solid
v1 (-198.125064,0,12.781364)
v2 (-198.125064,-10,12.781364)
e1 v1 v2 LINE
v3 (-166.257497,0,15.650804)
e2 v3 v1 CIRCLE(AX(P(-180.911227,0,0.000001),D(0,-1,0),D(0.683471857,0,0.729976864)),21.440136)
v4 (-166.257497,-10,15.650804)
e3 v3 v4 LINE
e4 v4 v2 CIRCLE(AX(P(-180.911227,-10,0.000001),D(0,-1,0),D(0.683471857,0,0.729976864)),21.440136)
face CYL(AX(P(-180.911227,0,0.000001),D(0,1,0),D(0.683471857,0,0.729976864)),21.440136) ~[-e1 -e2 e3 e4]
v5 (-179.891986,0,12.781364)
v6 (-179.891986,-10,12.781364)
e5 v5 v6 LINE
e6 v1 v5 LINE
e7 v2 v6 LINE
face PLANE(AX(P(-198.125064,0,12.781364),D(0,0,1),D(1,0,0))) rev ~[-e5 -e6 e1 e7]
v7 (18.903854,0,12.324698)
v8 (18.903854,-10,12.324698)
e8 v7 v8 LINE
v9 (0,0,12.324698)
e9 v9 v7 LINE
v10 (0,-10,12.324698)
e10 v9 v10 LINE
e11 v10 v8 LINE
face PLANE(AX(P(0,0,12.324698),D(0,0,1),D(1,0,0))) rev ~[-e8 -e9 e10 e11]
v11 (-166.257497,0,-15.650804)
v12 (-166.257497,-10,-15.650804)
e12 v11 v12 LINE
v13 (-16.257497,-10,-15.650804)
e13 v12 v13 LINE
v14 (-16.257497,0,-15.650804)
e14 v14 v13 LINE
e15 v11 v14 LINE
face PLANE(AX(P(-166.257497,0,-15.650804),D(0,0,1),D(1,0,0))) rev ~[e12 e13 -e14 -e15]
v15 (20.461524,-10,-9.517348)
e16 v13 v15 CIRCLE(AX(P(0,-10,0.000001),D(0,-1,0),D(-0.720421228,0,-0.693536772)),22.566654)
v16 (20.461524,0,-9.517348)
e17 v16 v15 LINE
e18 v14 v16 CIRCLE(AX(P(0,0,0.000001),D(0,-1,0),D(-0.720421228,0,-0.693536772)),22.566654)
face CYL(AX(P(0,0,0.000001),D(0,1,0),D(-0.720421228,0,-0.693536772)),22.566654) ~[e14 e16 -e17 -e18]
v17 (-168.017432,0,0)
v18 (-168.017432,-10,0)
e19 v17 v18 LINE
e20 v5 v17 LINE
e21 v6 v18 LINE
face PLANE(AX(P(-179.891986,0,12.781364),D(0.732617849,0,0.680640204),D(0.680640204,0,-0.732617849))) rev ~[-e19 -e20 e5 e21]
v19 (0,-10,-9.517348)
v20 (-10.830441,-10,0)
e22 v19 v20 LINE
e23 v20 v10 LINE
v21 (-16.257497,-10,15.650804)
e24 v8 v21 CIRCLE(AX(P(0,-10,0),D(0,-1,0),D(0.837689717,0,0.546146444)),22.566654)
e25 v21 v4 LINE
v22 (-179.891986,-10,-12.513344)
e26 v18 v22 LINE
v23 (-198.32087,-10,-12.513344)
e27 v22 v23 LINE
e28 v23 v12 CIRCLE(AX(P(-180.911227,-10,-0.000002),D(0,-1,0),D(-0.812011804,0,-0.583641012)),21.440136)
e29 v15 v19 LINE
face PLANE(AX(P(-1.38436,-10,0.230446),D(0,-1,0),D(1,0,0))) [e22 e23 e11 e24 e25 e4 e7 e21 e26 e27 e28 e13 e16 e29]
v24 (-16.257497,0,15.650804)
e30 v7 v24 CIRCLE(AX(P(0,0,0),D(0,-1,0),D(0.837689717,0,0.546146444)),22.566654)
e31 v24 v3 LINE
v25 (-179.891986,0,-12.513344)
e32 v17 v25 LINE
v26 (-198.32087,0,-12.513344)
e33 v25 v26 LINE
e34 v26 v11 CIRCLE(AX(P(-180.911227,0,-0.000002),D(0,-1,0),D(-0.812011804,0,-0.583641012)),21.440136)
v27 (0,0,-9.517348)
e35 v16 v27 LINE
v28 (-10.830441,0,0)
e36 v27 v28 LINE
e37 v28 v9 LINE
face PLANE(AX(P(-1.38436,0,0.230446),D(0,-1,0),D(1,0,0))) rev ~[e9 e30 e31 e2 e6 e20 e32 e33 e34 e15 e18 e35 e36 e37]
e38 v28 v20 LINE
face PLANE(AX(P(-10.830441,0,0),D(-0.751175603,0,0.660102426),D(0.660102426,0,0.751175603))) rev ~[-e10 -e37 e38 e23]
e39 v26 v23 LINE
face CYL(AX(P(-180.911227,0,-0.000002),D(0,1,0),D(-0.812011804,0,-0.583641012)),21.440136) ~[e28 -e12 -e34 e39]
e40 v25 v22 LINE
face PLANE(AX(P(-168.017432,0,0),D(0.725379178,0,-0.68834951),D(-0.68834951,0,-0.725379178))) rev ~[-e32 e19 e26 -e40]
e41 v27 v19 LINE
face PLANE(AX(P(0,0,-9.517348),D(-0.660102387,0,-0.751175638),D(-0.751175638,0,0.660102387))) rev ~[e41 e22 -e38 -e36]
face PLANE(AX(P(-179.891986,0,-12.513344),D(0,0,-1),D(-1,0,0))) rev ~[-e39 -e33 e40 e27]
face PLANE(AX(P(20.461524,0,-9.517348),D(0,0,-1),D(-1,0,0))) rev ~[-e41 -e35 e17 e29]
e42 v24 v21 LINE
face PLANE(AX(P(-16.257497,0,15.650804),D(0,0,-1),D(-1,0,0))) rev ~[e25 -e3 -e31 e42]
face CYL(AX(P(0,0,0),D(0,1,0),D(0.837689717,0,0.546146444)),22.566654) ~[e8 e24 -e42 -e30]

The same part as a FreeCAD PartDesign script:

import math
import FreeCAD as App
import Part
import Sketcher
from FreeCAD import Vector
Q = App.Units.Quantity

doc = App.newDocument("Part")
body = doc.addObject("PartDesign::Body", "Body")

sketch1 = doc.addObject("Sketcher::SketchObject", "Sketch")
body.addObject(sketch1)
sketch1.AttachmentSupport = (doc.XZ_Plane, [""])
sketch1.MapMode = "FlatFace"
sketch1.addGeometry([
    Part.LineSegment(Vector(0, 12, 0), Vector(19, 12, 0)),
    Part.ArcOfCircle(Part.Circle(Vector(0, 0, 0), Vector(0, 0, 1), 23), math.radians(33), math.radians(136)),
    Part.LineSegment(Vector(-16, 16, 0), Vector(-166, 16, 0)),
    Part.ArcOfCircle(Part.Circle(Vector(-181, 0, 0), Vector(0, 0, 1), 21), math.radians(47), math.radians(143)),
    Part.LineSegment(Vector(-198, 13, 0), Vector(-180, 13, 0)),
    Part.LineSegment(Vector(-180, 13, 0), Vector(-168, 0, 0)),
    Part.LineSegment(Vector(-168, 0, 0), Vector(-180, -13, 0)),
    Part.LineSegment(Vector(-180, -13, 0), Vector(-198, -13, 0)),
    Part.ArcOfCircle(Part.Circle(Vector(-181, 0, 0), Vector(0, 0, 1), 21), math.radians(-144), math.radians(-47)),
    Part.LineSegment(Vector(-166, -16, 0), Vector(-16, -16, 0)),
    Part.ArcOfCircle(Part.Circle(Vector(0, 0, 0), Vector(0, 0, 1), 23), math.radians(-136), math.radians(-25)),
    Part.LineSegment(Vector(20, -10, 0), Vector(0, -10, 0)),
    Part.LineSegment(Vector(0, -10, 0), Vector(-11, 0, 0)),
    Part.LineSegment(Vector(-11, 0, 0), Vector(0, 12, 0)),
], False)
sketch1.addConstraint([
    Sketcher.Constraint("Coincident", 0, 2, 1, 1),
    Sketcher.Constraint("Coincident", 1, 2, 2, 1),
    Sketcher.Constraint("Coincident", 2, 2, 3, 1),
    Sketcher.Constraint("Coincident", 3, 2, 4, 1),
    Sketcher.Constraint("Coincident", 4, 2, 5, 1),
    Sketcher.Constraint("Coincident", 5, 2, 6, 1),
    Sketcher.Constraint("Coincident", 6, 2, 7, 1),
    Sketcher.Constraint("Coincident", 7, 2, 8, 1),
    Sketcher.Constraint("Coincident", 8, 2, 9, 1),
    Sketcher.Constraint("Coincident", 9, 2, 10, 1),
    Sketcher.Constraint("Coincident", 10, 2, 11, 1),
    Sketcher.Constraint("Coincident", 11, 2, 12, 1),
    Sketcher.Constraint("Coincident", 12, 2, 13, 1),
    Sketcher.Constraint("Coincident", 13, 2, 0, 1),
    Sketcher.Constraint("Horizontal", 0),
    Sketcher.Constraint("Horizontal", 2),
    Sketcher.Constraint("Horizontal", 4),
    Sketcher.Constraint("Horizontal", 7),
    Sketcher.Constraint("Horizontal", 9),
    Sketcher.Constraint("Horizontal", 11),
    Sketcher.Constraint("Coincident", 1, 3, -1, 1),
    Sketcher.Constraint("Coincident", 10, 3, -1, 1),
    Sketcher.Constraint("Coincident", 8, 3, 3, 3),
    Sketcher.Constraint("Equal", 3, 8),
    Sketcher.Constraint("Equal", 1, 10),
    Sketcher.Constraint("Symmetric", 2, 2, 8, 2, -1),
    Sketcher.Constraint("PointOnObject", 5, 2, -1),
    Sketcher.Constraint("PointOnObject", 11, 2, -2),
    Sketcher.Constraint("PointOnObject", 12, 2, -1),
    Sketcher.Constraint("PointOnObject", 13, 2, -2),
    Sketcher.Constraint("Perpendicular", 12, 13),
    Sketcher.Constraint("Vertical", 4, 2, 6, 2),
    Sketcher.Constraint("DistanceX", 2, 2, 2, 1, Q("150 mm")),
    Sketcher.Constraint("Radius", 1, Q("22.566654 mm")),
    Sketcher.Constraint("Radius", 3, Q("21.440136 mm")),
    Sketcher.Constraint("DistanceX", 4, 1, 4, 2, Q("18.233078 mm")),
    Sketcher.Constraint("DistanceY", 8, 3, 0, 2, Q("12.3247 mm")),
    Sketcher.Constraint("DistanceY", 9, 2, 0, 2, Q("27.975502 mm")),
    Sketcher.Constraint("DistanceX", 7, 2, 7, 1, Q("18.428884 mm")),
    Sketcher.Constraint("DistanceX", 11, 2, 11, 1, Q("20.461524 mm")),
    Sketcher.Constraint("DistanceX", 7, 2, -1, 1, Q("198.32087 mm")),
    Sketcher.Constraint("Distance", 5, Q("17.446154 mm")),
])
pad1 = doc.addObject("PartDesign::Pad", "Pad")
body.addObject(pad1)
pad1.Profile = sketch1
pad1.Length = 10

doc.recompute()
